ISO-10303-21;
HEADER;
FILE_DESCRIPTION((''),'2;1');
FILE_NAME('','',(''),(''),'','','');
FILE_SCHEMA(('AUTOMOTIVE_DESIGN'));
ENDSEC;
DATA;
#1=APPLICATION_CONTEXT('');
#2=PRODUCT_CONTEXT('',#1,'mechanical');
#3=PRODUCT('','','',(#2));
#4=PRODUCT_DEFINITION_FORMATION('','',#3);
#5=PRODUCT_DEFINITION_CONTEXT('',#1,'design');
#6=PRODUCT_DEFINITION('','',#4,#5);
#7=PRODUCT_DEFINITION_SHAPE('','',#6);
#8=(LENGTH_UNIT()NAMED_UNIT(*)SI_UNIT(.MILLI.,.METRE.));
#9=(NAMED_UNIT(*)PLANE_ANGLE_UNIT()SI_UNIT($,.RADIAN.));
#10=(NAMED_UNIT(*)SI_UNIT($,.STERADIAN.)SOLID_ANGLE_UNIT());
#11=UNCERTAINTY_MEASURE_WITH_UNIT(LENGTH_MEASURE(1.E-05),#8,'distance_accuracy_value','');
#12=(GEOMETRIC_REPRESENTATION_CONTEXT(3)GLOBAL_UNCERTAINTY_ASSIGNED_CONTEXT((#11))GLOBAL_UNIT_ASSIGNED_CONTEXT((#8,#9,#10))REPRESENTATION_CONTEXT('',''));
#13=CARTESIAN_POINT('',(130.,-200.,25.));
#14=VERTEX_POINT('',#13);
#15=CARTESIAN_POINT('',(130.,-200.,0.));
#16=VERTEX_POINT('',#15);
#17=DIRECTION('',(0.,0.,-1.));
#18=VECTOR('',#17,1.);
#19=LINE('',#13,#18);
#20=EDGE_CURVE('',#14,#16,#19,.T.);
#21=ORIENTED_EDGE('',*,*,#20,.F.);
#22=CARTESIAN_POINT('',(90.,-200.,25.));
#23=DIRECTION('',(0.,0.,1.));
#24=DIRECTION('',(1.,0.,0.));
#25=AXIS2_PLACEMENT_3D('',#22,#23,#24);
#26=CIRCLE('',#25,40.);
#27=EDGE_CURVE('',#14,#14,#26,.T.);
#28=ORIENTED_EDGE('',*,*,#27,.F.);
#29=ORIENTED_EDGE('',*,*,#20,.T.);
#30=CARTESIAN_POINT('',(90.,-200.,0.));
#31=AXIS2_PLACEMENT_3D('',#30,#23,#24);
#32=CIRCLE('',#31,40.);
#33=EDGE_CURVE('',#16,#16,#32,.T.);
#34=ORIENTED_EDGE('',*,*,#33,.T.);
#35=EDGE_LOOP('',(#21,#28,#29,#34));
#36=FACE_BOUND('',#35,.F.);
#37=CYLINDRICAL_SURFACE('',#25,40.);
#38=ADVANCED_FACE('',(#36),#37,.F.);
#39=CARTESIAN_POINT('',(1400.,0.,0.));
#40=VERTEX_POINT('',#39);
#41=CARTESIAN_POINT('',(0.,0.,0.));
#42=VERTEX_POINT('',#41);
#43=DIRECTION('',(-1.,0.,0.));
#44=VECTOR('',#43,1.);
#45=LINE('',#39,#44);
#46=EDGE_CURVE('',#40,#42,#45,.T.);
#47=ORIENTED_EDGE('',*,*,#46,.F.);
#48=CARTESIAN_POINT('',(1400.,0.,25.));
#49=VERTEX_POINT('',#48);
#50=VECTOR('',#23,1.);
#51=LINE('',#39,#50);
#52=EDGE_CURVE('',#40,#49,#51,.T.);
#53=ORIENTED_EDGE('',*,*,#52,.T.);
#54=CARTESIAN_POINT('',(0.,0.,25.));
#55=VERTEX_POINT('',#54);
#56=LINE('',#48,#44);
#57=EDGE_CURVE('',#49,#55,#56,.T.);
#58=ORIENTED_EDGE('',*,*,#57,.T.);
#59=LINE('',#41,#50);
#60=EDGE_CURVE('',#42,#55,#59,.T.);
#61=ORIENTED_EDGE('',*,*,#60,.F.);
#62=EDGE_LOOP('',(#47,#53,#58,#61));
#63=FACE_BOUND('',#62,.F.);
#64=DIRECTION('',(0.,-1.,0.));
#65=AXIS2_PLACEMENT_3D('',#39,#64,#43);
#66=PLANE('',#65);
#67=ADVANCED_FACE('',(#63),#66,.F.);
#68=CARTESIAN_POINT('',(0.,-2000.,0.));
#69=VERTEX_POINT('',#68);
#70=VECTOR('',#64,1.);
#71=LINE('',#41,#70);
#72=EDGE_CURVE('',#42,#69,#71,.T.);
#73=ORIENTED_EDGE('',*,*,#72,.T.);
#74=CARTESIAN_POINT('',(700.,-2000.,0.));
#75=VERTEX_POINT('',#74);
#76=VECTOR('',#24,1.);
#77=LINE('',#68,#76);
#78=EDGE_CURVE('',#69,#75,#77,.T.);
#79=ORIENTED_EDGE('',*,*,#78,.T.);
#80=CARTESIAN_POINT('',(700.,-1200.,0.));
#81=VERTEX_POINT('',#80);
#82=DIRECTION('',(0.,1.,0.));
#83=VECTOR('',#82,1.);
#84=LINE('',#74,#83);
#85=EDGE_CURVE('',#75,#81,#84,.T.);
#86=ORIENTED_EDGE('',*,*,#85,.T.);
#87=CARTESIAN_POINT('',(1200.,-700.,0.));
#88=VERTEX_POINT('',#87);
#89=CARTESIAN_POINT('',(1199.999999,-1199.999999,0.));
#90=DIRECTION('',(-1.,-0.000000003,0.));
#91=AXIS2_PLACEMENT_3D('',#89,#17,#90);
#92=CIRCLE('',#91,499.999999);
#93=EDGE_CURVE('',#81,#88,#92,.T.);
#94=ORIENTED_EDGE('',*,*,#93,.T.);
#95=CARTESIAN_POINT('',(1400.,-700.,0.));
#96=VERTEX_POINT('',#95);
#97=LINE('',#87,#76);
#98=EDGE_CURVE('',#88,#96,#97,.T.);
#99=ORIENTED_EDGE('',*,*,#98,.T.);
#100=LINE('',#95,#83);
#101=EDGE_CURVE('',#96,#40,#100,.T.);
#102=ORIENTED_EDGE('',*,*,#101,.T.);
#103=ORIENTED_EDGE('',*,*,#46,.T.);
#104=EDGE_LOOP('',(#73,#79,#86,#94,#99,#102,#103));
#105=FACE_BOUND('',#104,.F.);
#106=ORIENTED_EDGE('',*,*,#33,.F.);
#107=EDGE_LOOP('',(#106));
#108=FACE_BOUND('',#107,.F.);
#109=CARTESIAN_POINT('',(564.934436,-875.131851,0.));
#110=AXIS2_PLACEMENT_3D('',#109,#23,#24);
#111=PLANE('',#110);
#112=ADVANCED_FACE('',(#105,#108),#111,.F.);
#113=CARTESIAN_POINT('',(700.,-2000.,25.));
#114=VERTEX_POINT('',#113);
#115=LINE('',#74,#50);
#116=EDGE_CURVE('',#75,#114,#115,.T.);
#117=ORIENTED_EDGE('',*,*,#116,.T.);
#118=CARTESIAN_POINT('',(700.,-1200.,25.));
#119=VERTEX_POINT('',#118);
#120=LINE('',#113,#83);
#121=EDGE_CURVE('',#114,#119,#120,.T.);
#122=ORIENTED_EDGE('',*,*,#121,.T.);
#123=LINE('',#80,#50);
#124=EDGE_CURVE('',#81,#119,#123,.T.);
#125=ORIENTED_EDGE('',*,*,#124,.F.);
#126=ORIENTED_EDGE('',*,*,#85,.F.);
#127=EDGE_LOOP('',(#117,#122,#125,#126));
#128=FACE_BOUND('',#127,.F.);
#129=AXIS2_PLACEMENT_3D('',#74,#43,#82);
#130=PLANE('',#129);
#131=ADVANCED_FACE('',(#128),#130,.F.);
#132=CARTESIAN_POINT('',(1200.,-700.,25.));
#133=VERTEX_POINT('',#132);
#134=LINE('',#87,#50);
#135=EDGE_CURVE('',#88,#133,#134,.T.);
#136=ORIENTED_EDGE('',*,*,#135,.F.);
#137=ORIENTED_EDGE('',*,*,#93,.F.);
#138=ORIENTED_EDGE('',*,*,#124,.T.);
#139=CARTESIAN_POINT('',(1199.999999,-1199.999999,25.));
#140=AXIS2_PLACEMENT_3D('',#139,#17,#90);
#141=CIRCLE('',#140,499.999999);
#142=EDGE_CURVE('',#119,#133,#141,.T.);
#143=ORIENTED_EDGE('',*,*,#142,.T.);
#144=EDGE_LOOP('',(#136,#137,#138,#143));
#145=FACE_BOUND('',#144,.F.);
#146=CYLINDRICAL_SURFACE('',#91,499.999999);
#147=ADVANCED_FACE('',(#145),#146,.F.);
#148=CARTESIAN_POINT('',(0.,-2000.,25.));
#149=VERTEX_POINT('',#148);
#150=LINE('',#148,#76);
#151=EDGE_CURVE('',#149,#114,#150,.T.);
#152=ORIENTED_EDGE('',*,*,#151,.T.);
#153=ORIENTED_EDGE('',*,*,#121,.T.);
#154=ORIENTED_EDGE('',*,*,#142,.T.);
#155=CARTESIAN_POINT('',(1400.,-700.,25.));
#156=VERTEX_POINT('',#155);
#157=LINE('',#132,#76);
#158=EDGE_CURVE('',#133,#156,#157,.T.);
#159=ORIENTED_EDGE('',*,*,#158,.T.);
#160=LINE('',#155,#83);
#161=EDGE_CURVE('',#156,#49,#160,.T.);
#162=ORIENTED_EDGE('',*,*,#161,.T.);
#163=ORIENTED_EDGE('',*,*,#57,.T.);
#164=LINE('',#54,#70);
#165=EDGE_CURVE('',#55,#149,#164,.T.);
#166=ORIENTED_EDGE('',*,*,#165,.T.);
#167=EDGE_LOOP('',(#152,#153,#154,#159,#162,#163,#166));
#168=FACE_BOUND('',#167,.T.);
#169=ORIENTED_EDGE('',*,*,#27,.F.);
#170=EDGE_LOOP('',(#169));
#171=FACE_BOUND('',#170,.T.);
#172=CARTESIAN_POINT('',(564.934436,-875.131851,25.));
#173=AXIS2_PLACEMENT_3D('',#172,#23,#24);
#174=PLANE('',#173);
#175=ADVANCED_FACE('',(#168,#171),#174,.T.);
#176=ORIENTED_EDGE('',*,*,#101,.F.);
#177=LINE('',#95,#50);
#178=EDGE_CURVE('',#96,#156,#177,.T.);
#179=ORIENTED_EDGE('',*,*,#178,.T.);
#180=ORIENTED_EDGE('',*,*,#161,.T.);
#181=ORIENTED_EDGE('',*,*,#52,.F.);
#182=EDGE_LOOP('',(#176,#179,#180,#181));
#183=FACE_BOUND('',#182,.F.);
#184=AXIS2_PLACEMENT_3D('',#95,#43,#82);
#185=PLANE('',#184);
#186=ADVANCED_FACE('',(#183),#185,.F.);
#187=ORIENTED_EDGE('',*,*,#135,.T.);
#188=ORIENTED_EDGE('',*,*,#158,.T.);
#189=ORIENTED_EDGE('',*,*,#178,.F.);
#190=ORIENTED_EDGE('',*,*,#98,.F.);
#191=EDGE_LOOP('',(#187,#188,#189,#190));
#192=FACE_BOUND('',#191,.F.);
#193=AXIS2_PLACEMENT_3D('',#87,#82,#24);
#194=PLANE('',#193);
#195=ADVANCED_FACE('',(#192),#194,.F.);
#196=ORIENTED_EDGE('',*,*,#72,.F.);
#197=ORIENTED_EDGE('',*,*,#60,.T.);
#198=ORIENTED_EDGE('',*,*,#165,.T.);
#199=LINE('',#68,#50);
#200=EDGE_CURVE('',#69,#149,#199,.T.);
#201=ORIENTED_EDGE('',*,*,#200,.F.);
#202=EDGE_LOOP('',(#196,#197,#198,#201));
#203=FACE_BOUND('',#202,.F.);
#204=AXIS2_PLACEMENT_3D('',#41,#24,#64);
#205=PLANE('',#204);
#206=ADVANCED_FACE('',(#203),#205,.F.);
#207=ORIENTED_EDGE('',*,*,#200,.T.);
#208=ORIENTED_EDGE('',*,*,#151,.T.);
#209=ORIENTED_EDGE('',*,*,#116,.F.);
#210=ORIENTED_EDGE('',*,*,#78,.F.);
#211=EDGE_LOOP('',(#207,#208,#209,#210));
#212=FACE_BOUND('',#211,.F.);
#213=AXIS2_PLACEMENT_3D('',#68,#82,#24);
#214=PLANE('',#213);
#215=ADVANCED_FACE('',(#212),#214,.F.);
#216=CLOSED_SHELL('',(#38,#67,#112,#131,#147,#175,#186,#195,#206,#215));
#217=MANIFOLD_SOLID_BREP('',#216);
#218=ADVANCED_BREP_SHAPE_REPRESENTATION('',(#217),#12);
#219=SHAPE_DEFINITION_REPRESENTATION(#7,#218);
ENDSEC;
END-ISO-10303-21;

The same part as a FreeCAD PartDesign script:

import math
import FreeCAD as App
import Part
import Sketcher
from FreeCAD import Vector
Q = App.Units.Quantity

doc = App.newDocument("Part")
body = doc.addObject("PartDesign::Body", "Body")

# Sketch on XY plane
sketch1 = body.newObject("Sketcher::SketchObject", "Sketch")
sketch1.AttachmentSupport = (doc.getObject("XY_Plane"), [""])
sketch1.MapMode = "FlatFace"
sketch1.addGeometry(Part.LineSegment(Vector(1400, 0, 0), Vector(0, 0, 0)), False)
sketch1.addGeometry(Part.LineSegment(Vector(0, 0, 0), Vector(0, -2000, 0)), False)
sketch1.addGeometry(Part.LineSegment(Vector(0, -2000, 0), Vector(700, -2000, 0)), False)
sketch1.addGeometry(Part.LineSegment(Vector(700, -2000, 0), Vector(700, -1200, 0)), False)
sketch1.addGeometry(Part.ArcOfCircle(Part.Circle(Vector(1200, -1200, 0), Vector(0, 0, 1), 500), math.radians(90), math.radians(180)), False)
sketch1.addGeometry(Part.LineSegment(Vector(1200, -700, 0), Vector(1400, -700, 0)), False)
sketch1.addGeometry(Part.LineSegment(Vector(1400, -700, 0), Vector(1400, 0, 0)), False)
sketch1.addConstraint(Sketcher.Constraint("Coincident", 0, 2, 1, 1))
sketch1.addConstraint(Sketcher.Constraint("Coincident", 1, 2, 2, 1))
sketch1.addConstraint(Sketcher.Constraint("Coincident", 2, 2, 3, 1))
sketch1.addConstraint(Sketcher.Constraint("Tangent", 3, 2, 4, 2))
sketch1.addConstraint(Sketcher.Constraint("Tangent", 4, 1, 5, 1))
sketch1.addConstraint(Sketcher.Constraint("Coincident", 5, 2, 6, 1))
sketch1.addConstraint(Sketcher.Constraint("Coincident", 6, 2, 0, 1))
sketch1.addConstraint(Sketcher.Constraint("Horizontal", 0))
sketch1.addConstraint(Sketcher.Constraint("Vertical", 1))
sketch1.addConstraint(Sketcher.Constraint("Horizontal", 2))
sketch1.addConstraint(Sketcher.Constraint("Vertical", 3))
sketch1.addConstraint(Sketcher.Constraint("Horizontal", 5))
sketch1.addConstraint(Sketcher.Constraint("Vertical", 6))
sketch1.addConstraint(Sketcher.Constraint("Coincident", 0, 2, -1, 1))
sketch1.addConstraint(Sketcher.Constraint("Equal", 2, 6))
sketch1.addConstraint(Sketcher.Constraint("Radius", 4, Q("499.999999 mm")))
sketch1.addConstraint(Sketcher.Constraint("DistanceX", 0, 2, 0, 1, Q("1400 mm")))
sketch1.addConstraint(Sketcher.Constraint("DistanceX", 2, 1, 2, 2, Q("700 mm")))
sketch1.addConstraint(Sketcher.Constraint("DistanceY", 1, 2, 1, 1, Q("2000 mm")))
pad1 = body.newObject("PartDesign::Pad", "Pad")
pad1.Profile = sketch1
pad1.Length = 25

# Sketch on XY plane
sketch2 = body.newObject("Sketcher::SketchObject", "Sketch001")
sketch2.AttachmentSupport = (doc.getObject("XY_Plane"), [""])
sketch2.MapMode = "FlatFace"
sketch2.AttachmentOffset = App.Placement(Vector(0, 0, 25), App.Rotation())
sketch2.addGeometry(Part.Circle(Vector(90, -200, 0), Vector(0, 0, 1), 40), False)
sketch2.addConstraint(Sketcher.Constraint("Diameter", 0, Q("80 mm")))
sketch2.addConstraint(Sketcher.Constraint("DistanceX", -1, 1, 0, 3, Q("90 mm")))
sketch2.addConstraint(Sketcher.Constraint("DistanceY", 0, 3, -1, 1, Q("200 mm")))
pocket1 = body.newObject("PartDesign::Pocket", "Pocket")
pocket1.Profile = sketch2
pocket1.Type = "ThroughAll"

doc.recompute()
